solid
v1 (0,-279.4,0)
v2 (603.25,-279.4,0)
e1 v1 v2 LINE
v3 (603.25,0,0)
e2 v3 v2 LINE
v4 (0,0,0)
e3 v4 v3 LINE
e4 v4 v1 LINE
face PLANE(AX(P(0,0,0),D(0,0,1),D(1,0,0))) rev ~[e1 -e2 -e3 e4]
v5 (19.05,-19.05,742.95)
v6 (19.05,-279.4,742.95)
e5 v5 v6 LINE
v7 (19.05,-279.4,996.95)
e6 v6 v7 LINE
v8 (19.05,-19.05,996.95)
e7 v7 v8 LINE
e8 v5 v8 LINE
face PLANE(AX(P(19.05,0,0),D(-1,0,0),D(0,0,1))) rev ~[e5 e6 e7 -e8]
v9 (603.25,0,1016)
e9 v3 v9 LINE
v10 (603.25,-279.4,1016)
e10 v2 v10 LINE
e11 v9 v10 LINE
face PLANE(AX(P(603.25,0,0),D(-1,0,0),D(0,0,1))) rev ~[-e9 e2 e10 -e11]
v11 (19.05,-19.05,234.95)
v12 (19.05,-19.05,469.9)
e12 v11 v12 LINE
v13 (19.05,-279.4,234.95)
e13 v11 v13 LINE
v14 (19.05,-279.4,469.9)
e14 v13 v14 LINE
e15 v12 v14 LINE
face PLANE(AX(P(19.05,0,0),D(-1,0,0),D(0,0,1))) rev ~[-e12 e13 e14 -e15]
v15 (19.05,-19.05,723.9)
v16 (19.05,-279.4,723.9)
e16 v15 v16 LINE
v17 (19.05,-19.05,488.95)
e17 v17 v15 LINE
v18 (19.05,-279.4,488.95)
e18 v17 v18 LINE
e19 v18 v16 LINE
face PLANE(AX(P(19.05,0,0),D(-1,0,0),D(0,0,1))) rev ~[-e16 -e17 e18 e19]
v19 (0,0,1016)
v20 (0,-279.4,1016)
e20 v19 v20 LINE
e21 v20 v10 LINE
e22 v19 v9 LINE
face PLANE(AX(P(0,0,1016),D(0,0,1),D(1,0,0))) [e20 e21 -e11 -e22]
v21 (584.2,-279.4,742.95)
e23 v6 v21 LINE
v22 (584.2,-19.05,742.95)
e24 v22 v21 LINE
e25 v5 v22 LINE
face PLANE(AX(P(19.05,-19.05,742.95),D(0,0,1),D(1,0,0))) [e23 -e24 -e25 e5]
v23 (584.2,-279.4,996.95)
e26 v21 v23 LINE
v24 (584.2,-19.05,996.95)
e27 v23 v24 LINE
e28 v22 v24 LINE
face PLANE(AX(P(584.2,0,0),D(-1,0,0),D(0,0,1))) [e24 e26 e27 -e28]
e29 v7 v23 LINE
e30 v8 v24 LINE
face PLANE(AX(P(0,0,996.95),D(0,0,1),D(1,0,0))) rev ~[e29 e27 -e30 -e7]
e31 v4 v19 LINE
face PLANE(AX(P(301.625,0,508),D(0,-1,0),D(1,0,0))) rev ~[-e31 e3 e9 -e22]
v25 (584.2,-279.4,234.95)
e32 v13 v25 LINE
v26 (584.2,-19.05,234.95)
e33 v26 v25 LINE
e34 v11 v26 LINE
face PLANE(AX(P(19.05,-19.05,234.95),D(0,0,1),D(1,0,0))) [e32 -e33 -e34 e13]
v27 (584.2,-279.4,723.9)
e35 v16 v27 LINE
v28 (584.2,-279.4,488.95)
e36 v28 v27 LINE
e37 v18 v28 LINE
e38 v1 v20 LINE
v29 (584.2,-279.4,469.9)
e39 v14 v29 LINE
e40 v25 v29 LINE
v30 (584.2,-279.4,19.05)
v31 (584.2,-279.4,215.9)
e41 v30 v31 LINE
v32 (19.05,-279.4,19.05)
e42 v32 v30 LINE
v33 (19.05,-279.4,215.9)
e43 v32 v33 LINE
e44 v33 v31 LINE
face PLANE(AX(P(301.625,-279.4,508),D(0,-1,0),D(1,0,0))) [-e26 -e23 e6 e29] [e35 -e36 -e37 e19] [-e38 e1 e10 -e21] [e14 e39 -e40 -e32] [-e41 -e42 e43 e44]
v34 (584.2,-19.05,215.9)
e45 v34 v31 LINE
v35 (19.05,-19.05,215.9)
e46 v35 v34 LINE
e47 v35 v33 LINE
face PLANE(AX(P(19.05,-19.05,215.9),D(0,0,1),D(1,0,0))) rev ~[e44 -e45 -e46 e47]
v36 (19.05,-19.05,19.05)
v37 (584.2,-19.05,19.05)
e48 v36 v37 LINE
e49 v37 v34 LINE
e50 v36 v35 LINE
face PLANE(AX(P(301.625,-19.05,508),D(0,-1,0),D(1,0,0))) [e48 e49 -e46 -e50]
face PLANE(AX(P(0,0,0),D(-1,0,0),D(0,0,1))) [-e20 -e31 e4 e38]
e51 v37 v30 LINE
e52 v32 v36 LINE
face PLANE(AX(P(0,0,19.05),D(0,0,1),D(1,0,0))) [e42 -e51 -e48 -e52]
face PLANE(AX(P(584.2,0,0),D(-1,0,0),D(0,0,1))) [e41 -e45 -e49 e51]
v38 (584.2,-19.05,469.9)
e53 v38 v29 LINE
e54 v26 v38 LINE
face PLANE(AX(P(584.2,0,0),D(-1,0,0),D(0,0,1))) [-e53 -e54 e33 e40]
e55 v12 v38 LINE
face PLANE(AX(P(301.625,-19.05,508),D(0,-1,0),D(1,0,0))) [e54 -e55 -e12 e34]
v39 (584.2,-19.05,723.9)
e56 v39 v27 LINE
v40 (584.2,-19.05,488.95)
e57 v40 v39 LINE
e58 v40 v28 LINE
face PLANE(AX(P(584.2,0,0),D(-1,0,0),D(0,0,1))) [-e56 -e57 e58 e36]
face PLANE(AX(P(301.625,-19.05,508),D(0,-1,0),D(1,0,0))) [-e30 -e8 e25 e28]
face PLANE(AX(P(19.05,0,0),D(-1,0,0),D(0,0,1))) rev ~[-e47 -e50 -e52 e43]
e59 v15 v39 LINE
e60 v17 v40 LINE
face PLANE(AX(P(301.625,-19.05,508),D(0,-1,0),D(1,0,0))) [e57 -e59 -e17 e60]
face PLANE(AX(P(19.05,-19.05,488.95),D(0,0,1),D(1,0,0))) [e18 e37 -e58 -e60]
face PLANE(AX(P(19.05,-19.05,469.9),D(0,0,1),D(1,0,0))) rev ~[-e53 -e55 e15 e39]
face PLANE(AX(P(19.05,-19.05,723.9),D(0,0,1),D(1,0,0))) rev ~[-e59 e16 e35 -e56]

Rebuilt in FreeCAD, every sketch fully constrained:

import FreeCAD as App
import Part
import Sketcher
from FreeCAD import Vector
Q = App.Units.Quantity


def faces_at(feature, points):
    """Names of the faces that lie closest to the given points."""
    faces = feature.Shape.Faces
    near = lambda p: min(range(len(faces)), key=lambda i: faces[i].distToShape(Part.Vertex(*p))[0])
    return sorted({f"Face{near(p) + 1}" for p in points})

doc = App.newDocument("Part")
params = doc.addObject("Spreadsheet::Sheet", "Params")
for row, (alias, value) in enumerate([
    ("sketch1_height", "40 in"),
    ("sketch1_width", "23.75 in"),
    ("pad1_length", "11 in"),
    ("thickness_wall", "0.75 in"),
    ("sketch2_width", "22.25 in"),
    ("sketch2_height", "0.75 in"),
    ("pad2_length", "10.25 in"),
], start=1):
    params.set(f"A{row}", alias)
    params.set(f"B{row}", "=" + value)
    params.setAlias(f"B{row}", alias)

body = doc.addObject("PartDesign::Body", "Body")

sketch1 = body.newObject("Sketcher::SketchObject", "Sketch")
sketch1.AttachmentSupport = (doc.getObject("XZ_Plane"), [""])
sketch1.MapMode = "FlatFace"
sketch1.addGeometry([
    Part.LineSegment(Vector(0, 1016, 0), Vector(0, 0, 0)),
    Part.LineSegment(Vector(0, 0, 0), Vector(603, 0, 0)),
    Part.LineSegment(Vector(603, 0, 0), Vector(603, 1016, 0)),
    Part.LineSegment(Vector(603, 1016, 0), Vector(0, 1016, 0)),
], False)
sketch1.addConstraint([
    Sketcher.Constraint("Coincident", 0, 2, 1, 1),
    Sketcher.Constraint("Coincident", 1, 2, 2, 1),
    Sketcher.Constraint("Coincident", 2, 2, 3, 1),
    Sketcher.Constraint("Coincident", 3, 2, 0, 1),
    Sketcher.Constraint("Vertical", 0),
    Sketcher.Constraint("Horizontal", 1),
    Sketcher.Constraint("Vertical", 2),
    Sketcher.Constraint("Horizontal", 3),
    Sketcher.Constraint("Coincident", 0, 2, -1, 1),
    Sketcher.Constraint("DistanceY", 0, 2, 0, 1, Q("40 in")),
    Sketcher.Constraint("DistanceX", 1, 1, 1, 2, Q("23.75 in")),
])
sketch1.setExpression("Constraints[9]", "Params.sketch1_height")
sketch1.setExpression("Constraints[10]", "Params.sketch1_width")
pad1 = body.newObject("PartDesign::Pad", "Pad")
pad1.Profile = sketch1
pad1.setExpression("Length", "Params.pad1_length")
doc.recompute()

thickness = body.newObject("PartDesign::Thickness", "Thickness")
thickness.Base = (pad1, faces_at(pad1, [(301.625, -279.4, 508)]))
thickness.setExpression("Value", "Params.thickness_wall")
thickness.Reversed = True
thickness.Join = "Arc"

sketch2 = body.newObject("Sketcher::SketchObject", "Sketch001")
sketch2.AttachmentSupport = (doc.getObject("XZ_Plane"), [""])
sketch2.MapMode = "FlatFace"
sketch2.AttachmentOffset = App.Placement(Vector(0, 0, 0.75 * 25.4), App.Rotation())
sketch2.addGeometry([
    Part.LineSegment(Vector(19, 743, 0), Vector(19, 724, 0)),
    Part.LineSegment(Vector(19, 724, 0), Vector(584, 724, 0)),
    Part.LineSegment(Vector(584, 724, 0), Vector(584, 743, 0)),
    Part.LineSegment(Vector(584, 743, 0), Vector(19, 743, 0)),
    Part.LineSegment(Vector(19, 489, 0), Vector(19, 470, 0)),
    Part.LineSegment(Vector(19, 470, 0), Vector(584, 470, 0)),
    Part.LineSegment(Vector(584, 470, 0), Vector(584, 489, 0)),
    Part.LineSegment(Vector(584, 489, 0), Vector(19, 489, 0)),
    Part.LineSegment(Vector(19, 235, 0), Vector(19, 216, 0)),
    Part.LineSegment(Vector(19, 216, 0), Vector(584, 216, 0)),
    Part.LineSegment(Vector(584, 216, 0), Vector(584, 235, 0)),
    Part.LineSegment(Vector(584, 235, 0), Vector(19, 235, 0)),
], False)
sketch2.addConstraint([
    Sketcher.Constraint("Coincident", 0, 2, 1, 1),
    Sketcher.Constraint("Coincident", 1, 2, 2, 1),
    Sketcher.Constraint("Coincident", 2, 2, 3, 1),
    Sketcher.Constraint("Coincident", 3, 2, 0, 1),
    Sketcher.Constraint("Coincident", 4, 2, 5, 1),
    Sketcher.Constraint("Coincident", 5, 2, 6, 1),
    Sketcher.Constraint("Coincident", 6, 2, 7, 1),
    Sketcher.Constraint("Coincident", 7, 2, 4, 1),
    Sketcher.Constraint("Coincident", 8, 2, 9, 1),
    Sketcher.Constraint("Coincident", 9, 2, 10, 1),
    Sketcher.Constraint("Coincident", 10, 2, 11, 1),
    Sketcher.Constraint("Coincident", 11, 2, 8, 1),
    Sketcher.Constraint("Vertical", 0),
    Sketcher.Constraint("Horizontal", 1),
    Sketcher.Constraint("Vertical", 2),
    Sketcher.Constraint("Horizontal", 3),
    Sketcher.Constraint("Vertical", 4),
    Sketcher.Constraint("Horizontal", 5),
    Sketcher.Constraint("Vertical", 6),
    Sketcher.Constraint("Horizontal", 7),
    Sketcher.Constraint("Vertical", 8),
    Sketcher.Constraint("Horizontal", 9),
    Sketcher.Constraint("Vertical", 10),
    Sketcher.Constraint("Horizontal", 11),
    Sketcher.Constraint("Vertical", 3, 2, 4, 2),
    Sketcher.Constraint("Vertical", 2, 2, 5, 2),
    Sketcher.Constraint("Vertical", 7, 2, 8, 2),
    Sketcher.Constraint("Vertical", 6, 2, 9, 2),
    Sketcher.Constraint("Equal", 2, 4),
    Sketcher.Constraint("Equal", 6, 8),
    Sketcher.Constraint("DistanceX", -1, 1, 1, 2, Q("23 in")),
    Sketcher.Constraint("DistanceY", 4, 2, 0, 2, Q("10 in")),
    Sketcher.Constraint("DistanceY", 8, 2, 4, 2, Q("10 in")),
    Sketcher.Constraint("DistanceX", 1, 1, 1, 2, Q("22.25 in")),
    Sketcher.Constraint("DistanceY", 0, 2, 0, 1, Q("0.75 in")),
    Sketcher.Constraint("DistanceY", -1, 1, 0, 2, Q("28.5 in")),
])
sketch2.setExpression("Constraints[33]", "Params.sketch2_width")
sketch2.setExpression("Constraints[34]", "Params.sketch2_height")
pad2 = body.newObject("PartDesign::Pad", "Pad001")
pad2.Profile = sketch2
pad2.setExpression("Length", "Params.pad2_length")

doc.recompute()
